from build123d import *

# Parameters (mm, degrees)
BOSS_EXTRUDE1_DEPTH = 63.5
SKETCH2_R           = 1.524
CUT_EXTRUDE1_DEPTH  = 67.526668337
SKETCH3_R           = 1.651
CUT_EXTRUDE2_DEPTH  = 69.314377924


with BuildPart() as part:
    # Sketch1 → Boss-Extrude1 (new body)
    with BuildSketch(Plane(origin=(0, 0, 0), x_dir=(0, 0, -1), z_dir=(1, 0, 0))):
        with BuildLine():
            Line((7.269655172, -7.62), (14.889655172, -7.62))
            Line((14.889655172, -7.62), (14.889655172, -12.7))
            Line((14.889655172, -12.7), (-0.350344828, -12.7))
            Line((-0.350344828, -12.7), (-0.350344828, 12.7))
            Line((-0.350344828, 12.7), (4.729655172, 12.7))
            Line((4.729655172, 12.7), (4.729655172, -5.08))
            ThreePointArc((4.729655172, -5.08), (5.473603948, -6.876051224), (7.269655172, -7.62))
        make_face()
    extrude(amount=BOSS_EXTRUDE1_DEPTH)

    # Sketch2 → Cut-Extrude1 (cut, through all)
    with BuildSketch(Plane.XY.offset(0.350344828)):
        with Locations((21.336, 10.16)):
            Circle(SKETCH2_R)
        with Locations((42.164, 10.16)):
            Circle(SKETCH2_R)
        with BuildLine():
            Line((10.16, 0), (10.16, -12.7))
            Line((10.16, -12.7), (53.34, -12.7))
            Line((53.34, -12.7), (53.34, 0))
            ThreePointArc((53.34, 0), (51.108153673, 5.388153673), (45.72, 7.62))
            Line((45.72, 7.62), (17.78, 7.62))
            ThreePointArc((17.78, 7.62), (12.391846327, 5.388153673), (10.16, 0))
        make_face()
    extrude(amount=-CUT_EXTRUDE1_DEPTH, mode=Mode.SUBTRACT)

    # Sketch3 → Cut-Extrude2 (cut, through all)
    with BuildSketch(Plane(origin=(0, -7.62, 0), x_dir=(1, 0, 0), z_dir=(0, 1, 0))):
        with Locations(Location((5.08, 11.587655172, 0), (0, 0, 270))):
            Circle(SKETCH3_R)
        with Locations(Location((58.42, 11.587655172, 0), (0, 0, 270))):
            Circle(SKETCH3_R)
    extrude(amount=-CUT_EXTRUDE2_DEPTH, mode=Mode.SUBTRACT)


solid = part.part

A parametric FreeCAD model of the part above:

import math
import FreeCAD as App
import Part
import Sketcher
Q = App.Units.Quantity

doc = App.newDocument("Part")
body = doc.addObject("PartDesign::Body", "Body")

sketch1 = doc.addObject("Sketcher::SketchObject", "Sketch")
body.addObject(sketch1)
sketch1.AttachmentSupport = (doc.YZ_Plane, [""])
sketch1.MapMode = "FlatFace"
sketch1.addGeometry(Part.LineSegment(App.Vector(-7.62, -14.889655, 0), App.Vector(-7.62, -7.269655, 0)), False)
sketch1.addGeometry(Part.ArcOfCircle(Part.Circle(App.Vector(-5.08, -7.269655, 0), App.Vector(0, 0, 1), 2.54), math.radians(90), math.radians(180)), False)
sketch1.addGeometry(Part.LineSegment(App.Vector(-5.08, -4.729655, 0), App.Vector(12.7, -4.729655, 0)), False)
sketch1.addGeometry(Part.LineSegment(App.Vector(12.7, -4.729655, 0), App.Vector(12.7, 0.350345, 0)), False)
sketch1.addGeometry(Part.LineSegment(App.Vector(12.7, 0.350345, 0), App.Vector(-12.7, 0.350345, 0)), False)
sketch1.addGeometry(Part.LineSegment(App.Vector(-12.7, 0.350345, 0), App.Vector(-12.7, -14.889655, 0)), False)
sketch1.addGeometry(Part.LineSegment(App.Vector(-12.7, -14.889655, 0), App.Vector(-7.62, -14.889655, 0)), False)
sketch1.addConstraint(Sketcher.Constraint("Tangent", 0, 2, 1, 2))
sketch1.addConstraint(Sketcher.Constraint("Tangent", 1, 1, 2, 1))
sketch1.addConstraint(Sketcher.Constraint("Coincident", 2, 2, 3, 1))
sketch1.addConstraint(Sketcher.Constraint("Coincident", 3, 2, 4, 1))
sketch1.addConstraint(Sketcher.Constraint("Coincident", 4, 2, 5, 1))
sketch1.addConstraint(Sketcher.Constraint("Coincident", 5, 2, 6, 1))
sketch1.addConstraint(Sketcher.Constraint("Coincident", 6, 2, 0, 1))
sketch1.addConstraint(Sketcher.Constraint("Vertical", 0))
sketch1.addConstraint(Sketcher.Constraint("Horizontal", 2))
sketch1.addConstraint(Sketcher.Constraint("Vertical", 3))
sketch1.addConstraint(Sketcher.Constraint("Horizontal", 4))
sketch1.addConstraint(Sketcher.Constraint("Vertical", 5))
sketch1.addConstraint(Sketcher.Constraint("Horizontal", 6))
sketch1.addConstraint(Sketcher.Constraint("Equal", 6, 3))
sketch1.addConstraint(Sketcher.Constraint("Radius", 1, Q("0.1 in")))
sketch1.addConstraint(Sketcher.Constraint("DistanceX", 4, 2, 4, 1, Q("1 in")))
sketch1.addConstraint(Sketcher.Constraint("DistanceX", 2, 1, 2, 2, Q("0.7 in")))
sketch1.addConstraint(Sketcher.Constraint("DistanceY", 0, 1, 0, 2, Q("0.3 in")))
sketch1.addConstraint(Sketcher.Constraint("DistanceX", 1, 3, -1, 1, Q("0.2 in")))
sketch1.addConstraint(Sketcher.Constraint("DistanceY", 1, 3, -1, 1, Q("7.269655 mm")))
pad1 = doc.addObject("PartDesign::Pad", "Pad")
body.addObject(pad1)
pad1.Profile = sketch1
pad1.Length = Q("2.5 in")

sketch2 = doc.addObject("Sketcher::SketchObject", "Sketch001")
body.addObject(sketch2)
sketch2.AttachmentSupport = (doc.XY_Plane, [""])
sketch2.MapMode = "FlatFace"
sketch2.AttachmentOffset = App.Placement(App.Vector(0, 0, 0.350345), App.Rotation())
sketch2.addGeometry(Part.Circle(App.Vector(21.336, 10.16, 0), App.Vector(0, 0, 1), 1.524), False)
sketch2.addGeometry(Part.Circle(App.Vector(42.164, 10.16, 0), App.Vector(0, 0, 1), 1.524), False)
sketch2.addGeometry(Part.LineSegment(App.Vector(10.16, 0, 0), App.Vector(10.16, -12.7, 0)), False)
sketch2.addGeometry(Part.LineSegment(App.Vector(10.16, -12.7, 0), App.Vector(53.34, -12.7, 0)), False)
sketch2.addGeometry(Part.LineSegment(App.Vector(53.34, -12.7, 0), App.Vector(53.34, 0, 0)), False)
sketch2.addGeometry(Part.ArcOfCircle(Part.Circle(App.Vector(45.72, 0, 0), App.Vector(0, 0, 1), 7.62), math.radians(0), math.radians(90)), False)
sketch2.addGeometry(Part.LineSegment(App.Vector(45.72, 7.62, 0), App.Vector(17.78, 7.62, 0)), False)
sketch2.addGeometry(Part.ArcOfCircle(Part.Circle(App.Vector(17.78, 0, 0), App.Vector(0, 0, 1), 7.62), math.radians(90), math.radians(180)), False)
sketch2.addConstraint(Sketcher.Constraint("Coincident", 2, 2, 3, 1))
sketch2.addConstraint(Sketcher.Constraint("Coincident", 3, 2, 4, 1))
sketch2.addConstraint(Sketcher.Constraint("Tangent", 4, 2, 5, 1))
sketch2.addConstraint(Sketcher.Constraint("Tangent", 5, 2, 6, 1))
sketch2.addConstraint(Sketcher.Constraint("Tangent", 6, 2, 7, 1))
sketch2.addConstraint(Sketcher.Constraint("Tangent", 7, 2, 2, 1))
sketch2.addConstraint(Sketcher.Constraint("Vertical", 2))
sketch2.addConstraint(Sketcher.Constraint("Horizontal", 3))
sketch2.addConstraint(Sketcher.Constraint("Vertical", 4))
sketch2.addConstraint(Sketcher.Constraint("Horizontal", 6))
sketch2.addConstraint(Sketcher.Constraint("Equal", 0, 1))
sketch2.addConstraint(Sketcher.Constraint("Equal", 5, 7))
sketch2.addConstraint(Sketcher.Constraint("PointOnObject", 5, 3, -1))
sketch2.addConstraint(Sketcher.Constraint("Horizontal", 0, 3, 1, 3))
sketch2.addConstraint(Sketcher.Constraint("Radius", 5, Q("0.3 in")))
sketch2.addConstraint(Sketcher.Constraint("Diameter", 0, Q("0.12 in")))
sketch2.addConstraint(Sketcher.Constraint("DistanceX", 3, 1, 3, 2, Q("1.7 in")))
sketch2.addConstraint(Sketcher.Constraint("DistanceY", 2, 2, 2, 1, Q("0.5 in")))
sketch2.addConstraint(Sketcher.Constraint("DistanceY", -1, 1, 0, 3, Q("0.4 in")))
sketch2.addConstraint(Sketcher.Constraint("DistanceX", -1, 1, 5, 3, Q("1.8 in")))
sketch2.addConstraint(Sketcher.Constraint("DistanceX", -1, 1, 0, 3, Q("0.84 in")))
sketch2.addConstraint(Sketcher.Constraint("DistanceX", -1, 1, 1, 3, Q("1.66 in")))
pocket1 = doc.addObject("PartDesign::Pocket", "Pocket")
body.addObject(pocket1)
pocket1.Profile = sketch2
pocket1.Type = "ThroughAll"

sketch3 = doc.addObject("Sketcher::SketchObject", "Sketch002")
body.addObject(sketch3)
sketch3.AttachmentSupport = (doc.XZ_Plane, [""])
sketch3.MapMode = "FlatFace"
sketch3.AttachmentOffset = App.Placement(App.Vector(0, 0, 0.3 * 25.4), App.Rotation())
sketch3.addGeometry(Part.Circle(App.Vector(5.08, -11.587655, 0), App.Vector(0, 0, 1), 1.651), False)
sketch3.addGeometry(Part.Circle(App.Vector(58.42, -11.587655, 0), App.Vector(0, 0, 1), 1.651), False)
sketch3.addConstraint(Sketcher.Constraint("Equal", 0, 1))
sketch3.addConstraint(Sketcher.Constraint("Horizontal", 0, 3, 1, 3))
sketch3.addConstraint(Sketcher.Constraint("Diameter", 0, Q("0.13 in")))
sketch3.addConstraint(Sketcher.Constraint("DistanceX", -1, 1, 0, 3, Q("0.2 in")))
sketch3.addConstraint(Sketcher.Constraint("DistanceX", -1, 1, 1, 3, Q("2.3 in")))
sketch3.addConstraint(Sketcher.Constraint("DistanceY", 0, 3, -1, 1, Q("11.587655 mm")))
pocket2 = doc.addObject("PartDesign::Pocket", "Pocket001")
body.addObject(pocket2)
pocket2.Profile = sketch3
pocket2.Type = "ThroughAll"
pocket2.Reversed = True

doc.recompute()
